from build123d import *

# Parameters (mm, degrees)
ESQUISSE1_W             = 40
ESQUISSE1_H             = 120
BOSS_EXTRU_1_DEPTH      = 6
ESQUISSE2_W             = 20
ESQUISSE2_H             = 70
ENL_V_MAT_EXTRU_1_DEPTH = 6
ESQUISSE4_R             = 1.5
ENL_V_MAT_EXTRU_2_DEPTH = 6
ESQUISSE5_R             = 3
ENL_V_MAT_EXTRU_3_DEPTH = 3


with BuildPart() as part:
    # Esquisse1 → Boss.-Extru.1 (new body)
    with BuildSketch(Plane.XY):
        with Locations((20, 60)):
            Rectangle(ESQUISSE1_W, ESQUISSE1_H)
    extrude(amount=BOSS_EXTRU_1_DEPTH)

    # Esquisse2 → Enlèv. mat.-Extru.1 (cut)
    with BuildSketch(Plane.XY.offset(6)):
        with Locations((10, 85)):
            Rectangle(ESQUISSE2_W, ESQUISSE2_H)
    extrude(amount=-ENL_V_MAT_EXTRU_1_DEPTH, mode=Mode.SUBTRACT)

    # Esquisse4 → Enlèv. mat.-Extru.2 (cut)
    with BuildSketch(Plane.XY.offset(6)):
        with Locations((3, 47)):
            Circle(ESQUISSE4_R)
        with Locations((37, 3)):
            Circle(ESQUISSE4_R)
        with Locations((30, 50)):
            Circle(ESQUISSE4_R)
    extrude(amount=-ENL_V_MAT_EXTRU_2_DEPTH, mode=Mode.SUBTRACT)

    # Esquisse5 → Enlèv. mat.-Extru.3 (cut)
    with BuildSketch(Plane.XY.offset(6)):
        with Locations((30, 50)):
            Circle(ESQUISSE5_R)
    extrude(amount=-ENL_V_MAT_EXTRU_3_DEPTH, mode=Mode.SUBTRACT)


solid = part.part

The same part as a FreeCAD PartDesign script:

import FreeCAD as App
import Part
import Sketcher
Q = App.Units.Quantity

doc = App.newDocument("Part")
params = doc.addObject("Spreadsheet::Sheet", "Params")
for row, (alias, value) in enumerate([
    ("sketch1_width", "40 mm"),
    ("sketch1_height", "120 mm"),
    ("pad1_length", "6 mm"),
    ("sketch2_width", "20 mm"),
    ("sketch2_height", "70 mm"),
    ("pocket1_length", "6 mm"),
    ("sketch3_diameter", "3 mm"),
    ("pocket2_length", "6 mm"),
    ("sketch4_diameter", "6 mm"),
    ("pocket3_length", "3 mm"),
], start=1):
    params.set(f"A{row}", alias)
    params.set(f"B{row}", "=" + value)
    params.setAlias(f"B{row}", alias)

body = doc.addObject("PartDesign::Body", "Body")

sketch1 = doc.addObject("Sketcher::SketchObject", "Sketch")
body.addObject(sketch1)
sketch1.AttachmentSupport = (doc.XY_Plane, [""])
sketch1.MapMode = "FlatFace"
sketch1.addGeometry([
    Part.LineSegment(App.Vector(0, 120, 0), App.Vector(0, 0, 0)),
    Part.LineSegment(App.Vector(0, 0, 0), App.Vector(40, 0, 0)),
    Part.LineSegment(App.Vector(40, 0, 0), App.Vector(40, 120, 0)),
    Part.LineSegment(App.Vector(40, 120, 0), App.Vector(0, 120, 0)),
], False)
sketch1.addConstraint([
    Sketcher.Constraint("Coincident", 0, 2, 1, 1),
    Sketcher.Constraint("Coincident", 1, 2, 2, 1),
    Sketcher.Constraint("Coincident", 2, 2, 3, 1),
    Sketcher.Constraint("Coincident", 3, 2, 0, 1),
    Sketcher.Constraint("Vertical", 0),
    Sketcher.Constraint("Horizontal", 1),
    Sketcher.Constraint("Vertical", 2),
    Sketcher.Constraint("Horizontal", 3),
    Sketcher.Constraint("Coincident", 0, 2, -1, 1),
    Sketcher.Constraint("DistanceX", 1, 1, 1, 2, Q("40 mm")),
    Sketcher.Constraint("DistanceY", 0, 2, 0, 1, Q("120 mm")),
])
sketch1.setExpression("Constraints[9]", "Params.sketch1_width")
sketch1.setExpression("Constraints[10]", "Params.sketch1_height")
pad1 = doc.addObject("PartDesign::Pad", "Pad")
body.addObject(pad1)
pad1.Profile = sketch1
pad1.setExpression("Length", "Params.pad1_length")

sketch2 = doc.addObject("Sketcher::SketchObject", "Sketch001")
body.addObject(sketch2)
sketch2.AttachmentSupport = (doc.XY_Plane, [""])
sketch2.MapMode = "FlatFace"
sketch2.AttachmentOffset = App.Placement(App.Vector(0, 0, 6), App.Rotation())
sketch2.addGeometry([
    Part.LineSegment(App.Vector(0, 120, 0), App.Vector(0, 50, 0)),
    Part.LineSegment(App.Vector(0, 50, 0), App.Vector(20, 50, 0)),
    Part.LineSegment(App.Vector(20, 50, 0), App.Vector(20, 120, 0)),
    Part.LineSegment(App.Vector(20, 120, 0), App.Vector(0, 120, 0)),
], False)
sketch2.addConstraint([
    Sketcher.Constraint("Coincident", 0, 2, 1, 1),
    Sketcher.Constraint("Coincident", 1, 2, 2, 1),
    Sketcher.Constraint("Coincident", 2, 2, 3, 1),
    Sketcher.Constraint("Coincident", 3, 2, 0, 1),
    Sketcher.Constraint("Vertical", 0),
    Sketcher.Constraint("Horizontal", 1),
    Sketcher.Constraint("Vertical", 2),
    Sketcher.Constraint("Horizontal", 3),
    Sketcher.Constraint("PointOnObject", 0, 2, -2),
    Sketcher.Constraint("DistanceX", 1, 1, 1, 2, Q("20 mm")),
    Sketcher.Constraint("DistanceY", 0, 2, 0, 1, Q("70 mm")),
    Sketcher.Constraint("DistanceY", -1, 1, 0, 2, Q("50 mm")),
])
sketch2.setExpression("Constraints[9]", "Params.sketch2_width")
sketch2.setExpression("Constraints[10]", "Params.sketch2_height")
pocket1 = doc.addObject("PartDesign::Pocket", "Pocket")
body.addObject(pocket1)
pocket1.Profile = sketch2
pocket1.setExpression("Length", "Params.pocket1_length")

sketch3 = doc.addObject("Sketcher::SketchObject", "Sketch002")
body.addObject(sketch3)
sketch3.AttachmentSupport = (doc.XY_Plane, [""])
sketch3.MapMode = "FlatFace"
sketch3.AttachmentOffset = App.Placement(App.Vector(0, 0, 6), App.Rotation())
sketch3.addGeometry([
    Part.Circle(App.Vector(3, 47, 0), App.Vector(0, 0, 1), 1.5),
    Part.Circle(App.Vector(37, 3, 0), App.Vector(0, 0, 1), 1.5),
    Part.Circle(App.Vector(30, 50, 0), App.Vector(0, 0, 1), 1.5),
], False)
sketch3.addConstraint([
    Sketcher.Constraint("Equal", 0, 1),
    Sketcher.Constraint("Equal", 1, 2),
    Sketcher.Constraint("Diameter", 0, Q("3 mm")),
    Sketcher.Constraint("DistanceX", -1, 1, 0, 3, Q("3 mm")),
    Sketcher.Constraint("DistanceY", -1, 1, 0, 3, Q("47 mm")),
    Sketcher.Constraint("DistanceX", -1, 1, 1, 3, Q("37 mm")),
    Sketcher.Constraint("DistanceY", -1, 1, 1, 3, Q("3 mm")),
    Sketcher.Constraint("DistanceX", -1, 1, 2, 3, Q("30 mm")),
    Sketcher.Constraint("DistanceY", -1, 1, 2, 3, Q("50 mm")),
])
sketch3.setExpression("Constraints[2]", "Params.sketch3_diameter")
pocket2 = doc.addObject("PartDesign::Pocket", "Pocket001")
body.addObject(pocket2)
pocket2.Profile = sketch3
pocket2.setExpression("Length", "Params.pocket2_length")

sketch4 = doc.addObject("Sketcher::SketchObject", "Sketch003")
body.addObject(sketch4)
sketch4.AttachmentSupport = (doc.XY_Plane, [""])
sketch4.MapMode = "FlatFace"
sketch4.AttachmentOffset = App.Placement(App.Vector(0, 0, 6), App.Rotation())
sketch4.addGeometry(Part.Circle(App.Vector(30, 50, 0), App.Vector(0, 0, 1), 3), False)
sketch4.addConstraint([
    Sketcher.Constraint("Diameter", 0, Q("6 mm")),
    Sketcher.Constraint("DistanceX", -1, 1, 0, 3, Q("30 mm")),
    Sketcher.Constraint("DistanceY", -1, 1, 0, 3, Q("50 mm")),
])
sketch4.setExpression("Constraints[0]", "Params.sketch4_diameter")
pocket3 = doc.addObject("PartDesign::Pocket", "Pocket002")
body.addObject(pocket3)
pocket3.Profile = sketch4
pocket3.setExpression("Length", "Params.pocket3_length")

doc.recompute()
